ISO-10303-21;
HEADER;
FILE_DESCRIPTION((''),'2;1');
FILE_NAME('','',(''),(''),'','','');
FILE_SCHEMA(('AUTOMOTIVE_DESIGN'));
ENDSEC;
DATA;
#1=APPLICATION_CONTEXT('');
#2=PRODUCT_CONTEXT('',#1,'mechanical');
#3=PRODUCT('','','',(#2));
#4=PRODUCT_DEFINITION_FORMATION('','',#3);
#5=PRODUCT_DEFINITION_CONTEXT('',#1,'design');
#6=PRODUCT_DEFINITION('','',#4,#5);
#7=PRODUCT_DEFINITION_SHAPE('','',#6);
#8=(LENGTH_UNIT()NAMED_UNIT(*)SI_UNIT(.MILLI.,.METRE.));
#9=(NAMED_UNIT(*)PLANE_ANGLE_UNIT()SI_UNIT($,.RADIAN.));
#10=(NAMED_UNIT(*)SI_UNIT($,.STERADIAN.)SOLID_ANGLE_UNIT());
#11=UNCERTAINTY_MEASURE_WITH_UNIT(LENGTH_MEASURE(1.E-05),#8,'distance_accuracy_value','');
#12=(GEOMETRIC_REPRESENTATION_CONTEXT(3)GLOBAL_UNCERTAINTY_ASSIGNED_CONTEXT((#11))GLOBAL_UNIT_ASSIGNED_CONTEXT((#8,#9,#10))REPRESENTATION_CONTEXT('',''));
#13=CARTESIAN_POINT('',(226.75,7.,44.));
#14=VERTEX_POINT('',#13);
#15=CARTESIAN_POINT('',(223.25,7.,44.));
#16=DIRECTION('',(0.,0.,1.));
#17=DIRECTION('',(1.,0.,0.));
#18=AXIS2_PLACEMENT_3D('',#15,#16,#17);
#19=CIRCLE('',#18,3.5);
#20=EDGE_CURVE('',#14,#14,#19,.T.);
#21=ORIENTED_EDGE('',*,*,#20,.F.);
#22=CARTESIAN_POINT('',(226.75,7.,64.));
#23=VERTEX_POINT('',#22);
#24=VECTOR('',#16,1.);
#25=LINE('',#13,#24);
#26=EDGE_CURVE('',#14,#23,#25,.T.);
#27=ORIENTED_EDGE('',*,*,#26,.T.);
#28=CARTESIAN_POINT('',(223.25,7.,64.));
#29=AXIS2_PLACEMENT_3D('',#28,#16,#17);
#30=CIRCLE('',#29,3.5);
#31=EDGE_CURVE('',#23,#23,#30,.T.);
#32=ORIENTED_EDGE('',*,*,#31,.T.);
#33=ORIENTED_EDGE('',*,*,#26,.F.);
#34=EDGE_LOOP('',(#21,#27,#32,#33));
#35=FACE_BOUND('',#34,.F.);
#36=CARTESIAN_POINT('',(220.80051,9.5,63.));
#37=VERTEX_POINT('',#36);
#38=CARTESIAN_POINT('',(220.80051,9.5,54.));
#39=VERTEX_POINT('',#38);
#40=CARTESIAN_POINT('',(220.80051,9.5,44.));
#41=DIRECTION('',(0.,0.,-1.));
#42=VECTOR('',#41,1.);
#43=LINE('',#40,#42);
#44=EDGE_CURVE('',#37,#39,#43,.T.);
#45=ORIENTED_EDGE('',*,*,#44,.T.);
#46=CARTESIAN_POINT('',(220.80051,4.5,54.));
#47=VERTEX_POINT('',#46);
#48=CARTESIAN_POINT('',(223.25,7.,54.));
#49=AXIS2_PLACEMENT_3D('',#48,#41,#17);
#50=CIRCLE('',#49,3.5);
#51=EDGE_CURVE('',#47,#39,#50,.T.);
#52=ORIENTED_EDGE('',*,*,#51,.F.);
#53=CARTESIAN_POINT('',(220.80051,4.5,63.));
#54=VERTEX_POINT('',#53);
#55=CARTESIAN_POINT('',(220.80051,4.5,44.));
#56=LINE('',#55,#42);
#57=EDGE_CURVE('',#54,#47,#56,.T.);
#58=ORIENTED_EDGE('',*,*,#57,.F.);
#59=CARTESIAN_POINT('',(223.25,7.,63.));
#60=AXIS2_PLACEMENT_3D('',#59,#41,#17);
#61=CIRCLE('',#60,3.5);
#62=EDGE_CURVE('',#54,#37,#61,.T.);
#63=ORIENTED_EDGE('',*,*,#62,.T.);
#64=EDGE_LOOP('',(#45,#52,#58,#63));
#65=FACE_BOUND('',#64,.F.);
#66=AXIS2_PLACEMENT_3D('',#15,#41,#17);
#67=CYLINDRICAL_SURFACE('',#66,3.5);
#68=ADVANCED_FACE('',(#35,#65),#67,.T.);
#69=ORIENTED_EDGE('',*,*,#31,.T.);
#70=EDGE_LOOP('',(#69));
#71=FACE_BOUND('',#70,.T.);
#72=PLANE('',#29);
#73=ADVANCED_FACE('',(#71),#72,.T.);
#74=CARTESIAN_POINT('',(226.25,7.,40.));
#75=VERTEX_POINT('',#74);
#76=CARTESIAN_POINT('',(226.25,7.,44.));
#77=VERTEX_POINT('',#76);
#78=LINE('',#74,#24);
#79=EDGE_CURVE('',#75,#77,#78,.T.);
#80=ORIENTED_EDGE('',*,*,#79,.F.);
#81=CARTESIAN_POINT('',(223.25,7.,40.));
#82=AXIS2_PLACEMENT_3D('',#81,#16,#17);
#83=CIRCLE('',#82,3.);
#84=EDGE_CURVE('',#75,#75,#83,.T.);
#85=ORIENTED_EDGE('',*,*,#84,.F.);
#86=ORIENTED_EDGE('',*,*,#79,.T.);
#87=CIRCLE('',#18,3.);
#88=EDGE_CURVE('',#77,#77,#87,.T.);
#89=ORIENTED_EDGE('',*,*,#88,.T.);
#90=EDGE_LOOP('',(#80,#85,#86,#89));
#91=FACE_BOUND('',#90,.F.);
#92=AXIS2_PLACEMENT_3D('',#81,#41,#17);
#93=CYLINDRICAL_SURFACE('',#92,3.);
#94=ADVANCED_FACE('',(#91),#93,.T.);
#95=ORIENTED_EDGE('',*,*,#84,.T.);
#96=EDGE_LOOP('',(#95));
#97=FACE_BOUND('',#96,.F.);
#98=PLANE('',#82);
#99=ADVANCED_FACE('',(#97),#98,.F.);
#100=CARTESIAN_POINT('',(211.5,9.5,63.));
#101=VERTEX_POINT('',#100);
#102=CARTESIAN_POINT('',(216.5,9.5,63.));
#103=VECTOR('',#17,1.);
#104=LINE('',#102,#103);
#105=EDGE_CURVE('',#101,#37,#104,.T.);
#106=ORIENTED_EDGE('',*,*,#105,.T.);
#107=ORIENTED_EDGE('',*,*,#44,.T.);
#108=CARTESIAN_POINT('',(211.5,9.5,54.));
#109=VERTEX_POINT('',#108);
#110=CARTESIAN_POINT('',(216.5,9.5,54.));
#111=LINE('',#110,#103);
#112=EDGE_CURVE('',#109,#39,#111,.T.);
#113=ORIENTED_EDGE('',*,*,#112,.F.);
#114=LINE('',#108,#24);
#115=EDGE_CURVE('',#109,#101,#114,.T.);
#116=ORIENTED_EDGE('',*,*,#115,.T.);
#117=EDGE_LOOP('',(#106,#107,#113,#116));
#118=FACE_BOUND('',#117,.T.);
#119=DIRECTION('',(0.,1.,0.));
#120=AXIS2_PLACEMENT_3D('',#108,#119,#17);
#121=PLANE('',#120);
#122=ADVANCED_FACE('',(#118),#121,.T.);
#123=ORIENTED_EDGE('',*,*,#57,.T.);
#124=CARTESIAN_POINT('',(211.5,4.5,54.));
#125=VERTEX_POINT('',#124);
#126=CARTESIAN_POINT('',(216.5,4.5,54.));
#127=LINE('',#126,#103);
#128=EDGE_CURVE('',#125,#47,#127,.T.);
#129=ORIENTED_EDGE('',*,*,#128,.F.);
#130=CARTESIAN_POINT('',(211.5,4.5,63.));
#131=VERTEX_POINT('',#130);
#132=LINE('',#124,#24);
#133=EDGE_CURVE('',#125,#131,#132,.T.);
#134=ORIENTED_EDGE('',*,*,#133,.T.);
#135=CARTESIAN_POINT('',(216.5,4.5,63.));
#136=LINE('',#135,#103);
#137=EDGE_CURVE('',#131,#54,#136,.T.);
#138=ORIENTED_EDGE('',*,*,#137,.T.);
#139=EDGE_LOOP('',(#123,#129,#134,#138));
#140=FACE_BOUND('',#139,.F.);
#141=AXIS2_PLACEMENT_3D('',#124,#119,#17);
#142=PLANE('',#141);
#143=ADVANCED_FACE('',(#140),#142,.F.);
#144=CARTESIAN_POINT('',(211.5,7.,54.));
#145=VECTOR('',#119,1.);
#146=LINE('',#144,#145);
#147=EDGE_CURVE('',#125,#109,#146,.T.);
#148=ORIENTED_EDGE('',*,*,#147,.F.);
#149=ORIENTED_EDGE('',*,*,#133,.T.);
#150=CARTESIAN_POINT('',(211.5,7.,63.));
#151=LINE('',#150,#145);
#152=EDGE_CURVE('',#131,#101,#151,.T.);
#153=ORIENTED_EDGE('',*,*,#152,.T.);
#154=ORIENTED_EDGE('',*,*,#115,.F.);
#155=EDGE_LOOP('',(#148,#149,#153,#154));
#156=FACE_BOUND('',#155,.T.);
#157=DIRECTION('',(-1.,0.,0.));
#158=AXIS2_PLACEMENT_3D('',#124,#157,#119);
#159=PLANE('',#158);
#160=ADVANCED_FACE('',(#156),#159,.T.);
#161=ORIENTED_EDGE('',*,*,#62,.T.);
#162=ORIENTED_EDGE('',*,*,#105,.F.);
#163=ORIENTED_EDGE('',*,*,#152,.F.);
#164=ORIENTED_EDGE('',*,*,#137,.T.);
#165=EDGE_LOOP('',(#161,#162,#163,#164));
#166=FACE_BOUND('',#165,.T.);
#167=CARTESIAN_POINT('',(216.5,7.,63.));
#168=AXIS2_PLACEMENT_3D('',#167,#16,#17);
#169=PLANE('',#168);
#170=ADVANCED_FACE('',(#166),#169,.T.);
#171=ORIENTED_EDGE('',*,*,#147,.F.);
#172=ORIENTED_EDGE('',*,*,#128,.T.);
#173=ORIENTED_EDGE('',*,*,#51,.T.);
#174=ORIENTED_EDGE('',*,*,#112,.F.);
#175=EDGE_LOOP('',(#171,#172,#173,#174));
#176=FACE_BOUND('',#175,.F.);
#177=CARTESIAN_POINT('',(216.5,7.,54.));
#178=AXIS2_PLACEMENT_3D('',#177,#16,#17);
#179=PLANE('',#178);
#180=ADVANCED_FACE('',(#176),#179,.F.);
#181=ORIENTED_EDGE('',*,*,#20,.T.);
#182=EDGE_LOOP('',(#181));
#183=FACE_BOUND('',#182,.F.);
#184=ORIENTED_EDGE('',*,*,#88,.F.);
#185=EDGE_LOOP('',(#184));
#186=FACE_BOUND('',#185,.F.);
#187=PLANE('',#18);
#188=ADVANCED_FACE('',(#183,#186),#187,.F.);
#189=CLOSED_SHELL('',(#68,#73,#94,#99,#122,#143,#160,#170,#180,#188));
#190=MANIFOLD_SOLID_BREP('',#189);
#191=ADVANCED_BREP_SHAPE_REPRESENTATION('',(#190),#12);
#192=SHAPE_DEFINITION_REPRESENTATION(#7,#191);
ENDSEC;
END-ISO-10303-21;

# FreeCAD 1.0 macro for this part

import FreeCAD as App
import Part
import Sketcher

V = App.Vector
Q = App.Units.Quantity

doc = App.newDocument("Part")
body = doc.addObject("PartDesign::Body", "Body")

# Sketch on XY plane
sketch1 = body.newObject("Sketcher::SketchObject", "Sketch")
sketch1.AttachmentSupport = (doc.getObject("XY_Plane"), [""])
sketch1.MapMode = "FlatFace"
sketch1.addGeometry(Part.LineSegment(V(0, 5, 0), V(0, 0, 0)), False)
sketch1.addGeometry(Part.LineSegment(V(0, 0, 0), V(10, 0, 0)), False)
sketch1.addGeometry(Part.LineSegment(V(10, 0, 0), V(10, 5, 0)), False)
sketch1.addGeometry(Part.LineSegment(V(10, 5, 0), V(0, 5, 0)), False)
sketch1.addConstraint(Sketcher.Constraint("Coincident", 0, 2, 1, 1))
sketch1.addConstraint(Sketcher.Constraint("Coincident", 1, 2, 2, 1))
sketch1.addConstraint(Sketcher.Constraint("Coincident", 2, 2, 3, 1))
sketch1.addConstraint(Sketcher.Constraint("Coincident", 3, 2, 0, 1))
sketch1.addConstraint(Sketcher.Constraint("Vertical", 0))
sketch1.addConstraint(Sketcher.Constraint("Horizontal", 1))
sketch1.addConstraint(Sketcher.Constraint("Vertical", 2))
sketch1.addConstraint(Sketcher.Constraint("Horizontal", 3))
sketch1.addConstraint(Sketcher.Constraint("Coincident", 0, 2, -1, 1))
sketch1.addConstraint(Sketcher.Constraint("DistanceX", 1, 1, 1, 2, Q("10 mm")))
sketch1.addConstraint(Sketcher.Constraint("DistanceY", 0, 2, 0, 1, Q("5 mm")))
pad1 = body.newObject("PartDesign::Pad", "Pad")
pad1.Profile = sketch1
pad1.Length = 9
body2 = doc.addObject("PartDesign::Body", "Body001")

# Sketch on XY plane
sketch2 = body2.newObject("Sketcher::SketchObject", "Sketch001")
sketch2.AttachmentSupport = (doc.getObject("XY_Plane001"), [""])
sketch2.MapMode = "FlatFace"
sketch2.AttachmentOffset = App.Placement(V(0, 0, -14), App.Rotation())
sketch2.addGeometry(Part.Circle(V(11.8, 2.5, 0), V(0, 0, 1), 3), False)
sketch2.addConstraint(Sketcher.Constraint("Diameter", 0, Q("6 mm")))
sketch2.addConstraint(Sketcher.Constraint("DistanceY", -1, 1, 0, 3, Q("2.5 mm")))
sketch2.addConstraint(Sketcher.Constraint("DistanceX", -1, 1, 0, 3, Q("11.75 mm")))
pad2 = body2.newObject("PartDesign::Pad", "Pad001")
pad2.Profile = sketch2
pad2.Length = 4
body3 = doc.addObject("PartDesign::Body", "Body002")

# Sketch on XY plane
sketch3 = body3.newObject("Sketcher::SketchObject", "Sketch002")
sketch3.AttachmentSupport = (doc.getObject("XY_Plane002"), [""])
sketch3.MapMode = "FlatFace"
sketch3.AttachmentOffset = App.Placement(V(0, 0, -10), App.Rotation())
sketch3.addGeometry(Part.Circle(V(11.8, 2.5, 0), V(0, 0, 1), 3.5), False)
sketch3.addConstraint(Sketcher.Constraint("Diameter", 0, Q("7 mm")))
sketch3.addConstraint(Sketcher.Constraint("DistanceY", -1, 1, 0, 3, Q("2.5 mm")))
sketch3.addConstraint(Sketcher.Constraint("DistanceX", -1, 1, 0, 3, Q("11.75 mm")))
pad3 = body3.newObject("PartDesign::Pad", "Pad002")
pad3.Profile = sketch3
pad3.Length = 20
doc.recompute()

boolean = body3.newObject("PartDesign::Boolean", "Boolean")
boolean.Type = "Fuse"
boolean.addObjects([body])
doc.recompute()

boolean2 = body3.newObject("PartDesign::Boolean", "Boolean001")
boolean2.Type = "Fuse"
boolean2.addObjects([body2])
body4 = doc.addObject("PartDesign::Body", "Body003")
doc.recompute()

body3.Placement = App.Placement(V(211.5, 4.5, 54), App.Rotation(V(0, 0, 1), 0))
boolean3 = body4.newObject("PartDesign::Boolean", "Boolean002")
boolean3.Type = "Fuse"
boolean3.addObjects([body3])

doc.recompute()
